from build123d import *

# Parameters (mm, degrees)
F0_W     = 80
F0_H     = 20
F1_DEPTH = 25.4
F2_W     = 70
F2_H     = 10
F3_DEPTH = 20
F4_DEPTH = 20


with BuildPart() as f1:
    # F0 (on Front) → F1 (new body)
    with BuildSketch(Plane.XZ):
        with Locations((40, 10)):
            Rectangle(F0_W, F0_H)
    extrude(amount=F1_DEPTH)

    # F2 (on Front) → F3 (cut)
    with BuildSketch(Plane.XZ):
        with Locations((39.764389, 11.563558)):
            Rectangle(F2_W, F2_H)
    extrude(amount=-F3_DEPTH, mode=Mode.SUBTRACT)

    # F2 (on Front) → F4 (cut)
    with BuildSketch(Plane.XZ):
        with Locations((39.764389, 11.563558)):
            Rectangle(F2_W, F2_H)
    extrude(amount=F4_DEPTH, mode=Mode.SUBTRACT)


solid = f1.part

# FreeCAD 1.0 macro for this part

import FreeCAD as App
import Part
import Sketcher

V = App.Vector
Q = App.Units.Quantity

doc = App.newDocument("Part")
body = doc.addObject("PartDesign::Body", "Body")

# Sketch on XZ plane
sketch1 = body.newObject("Sketcher::SketchObject", "Sketch")
sketch1.AttachmentSupport = (doc.getObject("XZ_Plane"), [""])
sketch1.MapMode = "FlatFace"
sketch1.addGeometry([
    Part.LineSegment(V(0, 20, 0), V(0, 0, 0)),
    Part.LineSegment(V(0, 0, 0), V(80, 0, 0)),
    Part.LineSegment(V(80, 0, 0), V(80, 20, 0)),
    Part.LineSegment(V(80, 20, 0), V(0, 20, 0)),
], False)
sketch1.addConstraint([
    Sketcher.Constraint("Coincident", 0, 2, 1, 1),
    Sketcher.Constraint("Coincident", 1, 2, 2, 1),
    Sketcher.Constraint("Coincident", 2, 2, 3, 1),
    Sketcher.Constraint("Coincident", 3, 2, 0, 1),
    Sketcher.Constraint("Vertical", 0),
    Sketcher.Constraint("Horizontal", 1),
    Sketcher.Constraint("Vertical", 2),
    Sketcher.Constraint("Horizontal", 3),
    Sketcher.Constraint("Coincident", 0, 2, -1, 1),
    Sketcher.Constraint("DistanceX", 1, 1, 1, 2, Q("80 mm")),
    Sketcher.Constraint("DistanceY", 0, 2, 0, 1, Q("20 mm")),
])
pad1 = body.newObject("PartDesign::Pad", "Pad")
pad1.Profile = sketch1
pad1.Length = 25.4

# Sketch on XZ plane
sketch2 = body.newObject("Sketcher::SketchObject", "Sketch001")
sketch2.AttachmentSupport = (doc.getObject("XZ_Plane"), [""])
sketch2.MapMode = "FlatFace"
sketch2.addGeometry([
    Part.LineSegment(V(5, 17, 0), V(5, 7, 0)),
    Part.LineSegment(V(5, 7, 0), V(75, 7, 0)),
    Part.LineSegment(V(75, 7, 0), V(75, 17, 0)),
    Part.LineSegment(V(75, 17, 0), V(5, 17, 0)),
], False)
sketch2.addConstraint([
    Sketcher.Constraint("Coincident", 0, 2, 1, 1),
    Sketcher.Constraint("Coincident", 1, 2, 2, 1),
    Sketcher.Constraint("Coincident", 2, 2, 3, 1),
    Sketcher.Constraint("Coincident", 3, 2, 0, 1),
    Sketcher.Constraint("Vertical", 0),
    Sketcher.Constraint("Horizontal", 1),
    Sketcher.Constraint("Vertical", 2),
    Sketcher.Constraint("Horizontal", 3),
    Sketcher.Constraint("DistanceX", 1, 1, 1, 2, Q("70 mm")),
    Sketcher.Constraint("DistanceY", 0, 2, 0, 1, Q("10 mm")),
    Sketcher.Constraint("DistanceX", -1, 1, 0, 2, Q("4.764389 mm")),
    Sketcher.Constraint("DistanceY", -1, 1, 2, 2, Q("16.563558 mm")),
])
pocket1 = body.newObject("PartDesign::Pocket", "Pocket")
pocket1.Profile = sketch2
pocket1.Length = 20

# Sketch on XZ plane
sketch3 = body.newObject("Sketcher::SketchObject", "Sketch002")
sketch3.AttachmentSupport = (doc.getObject("XZ_Plane"), [""])
sketch3.MapMode = "FlatFace"
sketch3.addGeometry([
    Part.LineSegment(V(5, 17, 0), V(5, 7, 0)),
    Part.LineSegment(V(5, 7, 0), V(75, 7, 0)),
    Part.LineSegment(V(75, 7, 0), V(75, 17, 0)),
    Part.LineSegment(V(75, 17, 0), V(5, 17, 0)),
], False)
sketch3.addConstraint([
    Sketcher.Constraint("Coincident", 0, 2, 1, 1),
    Sketcher.Constraint("Coincident", 1, 2, 2, 1),
    Sketcher.Constraint("Coincident", 2, 2, 3, 1),
    Sketcher.Constraint("Coincident", 3, 2, 0, 1),
    Sketcher.Constraint("Vertical", 0),
    Sketcher.Constraint("Horizontal", 1),
    Sketcher.Constraint("Vertical", 2),
    Sketcher.Constraint("Horizontal", 3),
    Sketcher.Constraint("DistanceX", 1, 1, 1, 2, Q("70 mm")),
    Sketcher.Constraint("DistanceY", 0, 2, 0, 1, Q("10 mm")),
    Sketcher.Constraint("DistanceX", -1, 1, 0, 2, Q("4.764389 mm")),
    Sketcher.Constraint("DistanceY", -1, 1, 2, 2, Q("16.563558 mm")),
])
pocket2 = body.newObject("PartDesign::Pocket", "Pocket001")
pocket2.Profile = sketch3
pocket2.Length = 20
pocket2.Reversed = True

doc.recompute()
